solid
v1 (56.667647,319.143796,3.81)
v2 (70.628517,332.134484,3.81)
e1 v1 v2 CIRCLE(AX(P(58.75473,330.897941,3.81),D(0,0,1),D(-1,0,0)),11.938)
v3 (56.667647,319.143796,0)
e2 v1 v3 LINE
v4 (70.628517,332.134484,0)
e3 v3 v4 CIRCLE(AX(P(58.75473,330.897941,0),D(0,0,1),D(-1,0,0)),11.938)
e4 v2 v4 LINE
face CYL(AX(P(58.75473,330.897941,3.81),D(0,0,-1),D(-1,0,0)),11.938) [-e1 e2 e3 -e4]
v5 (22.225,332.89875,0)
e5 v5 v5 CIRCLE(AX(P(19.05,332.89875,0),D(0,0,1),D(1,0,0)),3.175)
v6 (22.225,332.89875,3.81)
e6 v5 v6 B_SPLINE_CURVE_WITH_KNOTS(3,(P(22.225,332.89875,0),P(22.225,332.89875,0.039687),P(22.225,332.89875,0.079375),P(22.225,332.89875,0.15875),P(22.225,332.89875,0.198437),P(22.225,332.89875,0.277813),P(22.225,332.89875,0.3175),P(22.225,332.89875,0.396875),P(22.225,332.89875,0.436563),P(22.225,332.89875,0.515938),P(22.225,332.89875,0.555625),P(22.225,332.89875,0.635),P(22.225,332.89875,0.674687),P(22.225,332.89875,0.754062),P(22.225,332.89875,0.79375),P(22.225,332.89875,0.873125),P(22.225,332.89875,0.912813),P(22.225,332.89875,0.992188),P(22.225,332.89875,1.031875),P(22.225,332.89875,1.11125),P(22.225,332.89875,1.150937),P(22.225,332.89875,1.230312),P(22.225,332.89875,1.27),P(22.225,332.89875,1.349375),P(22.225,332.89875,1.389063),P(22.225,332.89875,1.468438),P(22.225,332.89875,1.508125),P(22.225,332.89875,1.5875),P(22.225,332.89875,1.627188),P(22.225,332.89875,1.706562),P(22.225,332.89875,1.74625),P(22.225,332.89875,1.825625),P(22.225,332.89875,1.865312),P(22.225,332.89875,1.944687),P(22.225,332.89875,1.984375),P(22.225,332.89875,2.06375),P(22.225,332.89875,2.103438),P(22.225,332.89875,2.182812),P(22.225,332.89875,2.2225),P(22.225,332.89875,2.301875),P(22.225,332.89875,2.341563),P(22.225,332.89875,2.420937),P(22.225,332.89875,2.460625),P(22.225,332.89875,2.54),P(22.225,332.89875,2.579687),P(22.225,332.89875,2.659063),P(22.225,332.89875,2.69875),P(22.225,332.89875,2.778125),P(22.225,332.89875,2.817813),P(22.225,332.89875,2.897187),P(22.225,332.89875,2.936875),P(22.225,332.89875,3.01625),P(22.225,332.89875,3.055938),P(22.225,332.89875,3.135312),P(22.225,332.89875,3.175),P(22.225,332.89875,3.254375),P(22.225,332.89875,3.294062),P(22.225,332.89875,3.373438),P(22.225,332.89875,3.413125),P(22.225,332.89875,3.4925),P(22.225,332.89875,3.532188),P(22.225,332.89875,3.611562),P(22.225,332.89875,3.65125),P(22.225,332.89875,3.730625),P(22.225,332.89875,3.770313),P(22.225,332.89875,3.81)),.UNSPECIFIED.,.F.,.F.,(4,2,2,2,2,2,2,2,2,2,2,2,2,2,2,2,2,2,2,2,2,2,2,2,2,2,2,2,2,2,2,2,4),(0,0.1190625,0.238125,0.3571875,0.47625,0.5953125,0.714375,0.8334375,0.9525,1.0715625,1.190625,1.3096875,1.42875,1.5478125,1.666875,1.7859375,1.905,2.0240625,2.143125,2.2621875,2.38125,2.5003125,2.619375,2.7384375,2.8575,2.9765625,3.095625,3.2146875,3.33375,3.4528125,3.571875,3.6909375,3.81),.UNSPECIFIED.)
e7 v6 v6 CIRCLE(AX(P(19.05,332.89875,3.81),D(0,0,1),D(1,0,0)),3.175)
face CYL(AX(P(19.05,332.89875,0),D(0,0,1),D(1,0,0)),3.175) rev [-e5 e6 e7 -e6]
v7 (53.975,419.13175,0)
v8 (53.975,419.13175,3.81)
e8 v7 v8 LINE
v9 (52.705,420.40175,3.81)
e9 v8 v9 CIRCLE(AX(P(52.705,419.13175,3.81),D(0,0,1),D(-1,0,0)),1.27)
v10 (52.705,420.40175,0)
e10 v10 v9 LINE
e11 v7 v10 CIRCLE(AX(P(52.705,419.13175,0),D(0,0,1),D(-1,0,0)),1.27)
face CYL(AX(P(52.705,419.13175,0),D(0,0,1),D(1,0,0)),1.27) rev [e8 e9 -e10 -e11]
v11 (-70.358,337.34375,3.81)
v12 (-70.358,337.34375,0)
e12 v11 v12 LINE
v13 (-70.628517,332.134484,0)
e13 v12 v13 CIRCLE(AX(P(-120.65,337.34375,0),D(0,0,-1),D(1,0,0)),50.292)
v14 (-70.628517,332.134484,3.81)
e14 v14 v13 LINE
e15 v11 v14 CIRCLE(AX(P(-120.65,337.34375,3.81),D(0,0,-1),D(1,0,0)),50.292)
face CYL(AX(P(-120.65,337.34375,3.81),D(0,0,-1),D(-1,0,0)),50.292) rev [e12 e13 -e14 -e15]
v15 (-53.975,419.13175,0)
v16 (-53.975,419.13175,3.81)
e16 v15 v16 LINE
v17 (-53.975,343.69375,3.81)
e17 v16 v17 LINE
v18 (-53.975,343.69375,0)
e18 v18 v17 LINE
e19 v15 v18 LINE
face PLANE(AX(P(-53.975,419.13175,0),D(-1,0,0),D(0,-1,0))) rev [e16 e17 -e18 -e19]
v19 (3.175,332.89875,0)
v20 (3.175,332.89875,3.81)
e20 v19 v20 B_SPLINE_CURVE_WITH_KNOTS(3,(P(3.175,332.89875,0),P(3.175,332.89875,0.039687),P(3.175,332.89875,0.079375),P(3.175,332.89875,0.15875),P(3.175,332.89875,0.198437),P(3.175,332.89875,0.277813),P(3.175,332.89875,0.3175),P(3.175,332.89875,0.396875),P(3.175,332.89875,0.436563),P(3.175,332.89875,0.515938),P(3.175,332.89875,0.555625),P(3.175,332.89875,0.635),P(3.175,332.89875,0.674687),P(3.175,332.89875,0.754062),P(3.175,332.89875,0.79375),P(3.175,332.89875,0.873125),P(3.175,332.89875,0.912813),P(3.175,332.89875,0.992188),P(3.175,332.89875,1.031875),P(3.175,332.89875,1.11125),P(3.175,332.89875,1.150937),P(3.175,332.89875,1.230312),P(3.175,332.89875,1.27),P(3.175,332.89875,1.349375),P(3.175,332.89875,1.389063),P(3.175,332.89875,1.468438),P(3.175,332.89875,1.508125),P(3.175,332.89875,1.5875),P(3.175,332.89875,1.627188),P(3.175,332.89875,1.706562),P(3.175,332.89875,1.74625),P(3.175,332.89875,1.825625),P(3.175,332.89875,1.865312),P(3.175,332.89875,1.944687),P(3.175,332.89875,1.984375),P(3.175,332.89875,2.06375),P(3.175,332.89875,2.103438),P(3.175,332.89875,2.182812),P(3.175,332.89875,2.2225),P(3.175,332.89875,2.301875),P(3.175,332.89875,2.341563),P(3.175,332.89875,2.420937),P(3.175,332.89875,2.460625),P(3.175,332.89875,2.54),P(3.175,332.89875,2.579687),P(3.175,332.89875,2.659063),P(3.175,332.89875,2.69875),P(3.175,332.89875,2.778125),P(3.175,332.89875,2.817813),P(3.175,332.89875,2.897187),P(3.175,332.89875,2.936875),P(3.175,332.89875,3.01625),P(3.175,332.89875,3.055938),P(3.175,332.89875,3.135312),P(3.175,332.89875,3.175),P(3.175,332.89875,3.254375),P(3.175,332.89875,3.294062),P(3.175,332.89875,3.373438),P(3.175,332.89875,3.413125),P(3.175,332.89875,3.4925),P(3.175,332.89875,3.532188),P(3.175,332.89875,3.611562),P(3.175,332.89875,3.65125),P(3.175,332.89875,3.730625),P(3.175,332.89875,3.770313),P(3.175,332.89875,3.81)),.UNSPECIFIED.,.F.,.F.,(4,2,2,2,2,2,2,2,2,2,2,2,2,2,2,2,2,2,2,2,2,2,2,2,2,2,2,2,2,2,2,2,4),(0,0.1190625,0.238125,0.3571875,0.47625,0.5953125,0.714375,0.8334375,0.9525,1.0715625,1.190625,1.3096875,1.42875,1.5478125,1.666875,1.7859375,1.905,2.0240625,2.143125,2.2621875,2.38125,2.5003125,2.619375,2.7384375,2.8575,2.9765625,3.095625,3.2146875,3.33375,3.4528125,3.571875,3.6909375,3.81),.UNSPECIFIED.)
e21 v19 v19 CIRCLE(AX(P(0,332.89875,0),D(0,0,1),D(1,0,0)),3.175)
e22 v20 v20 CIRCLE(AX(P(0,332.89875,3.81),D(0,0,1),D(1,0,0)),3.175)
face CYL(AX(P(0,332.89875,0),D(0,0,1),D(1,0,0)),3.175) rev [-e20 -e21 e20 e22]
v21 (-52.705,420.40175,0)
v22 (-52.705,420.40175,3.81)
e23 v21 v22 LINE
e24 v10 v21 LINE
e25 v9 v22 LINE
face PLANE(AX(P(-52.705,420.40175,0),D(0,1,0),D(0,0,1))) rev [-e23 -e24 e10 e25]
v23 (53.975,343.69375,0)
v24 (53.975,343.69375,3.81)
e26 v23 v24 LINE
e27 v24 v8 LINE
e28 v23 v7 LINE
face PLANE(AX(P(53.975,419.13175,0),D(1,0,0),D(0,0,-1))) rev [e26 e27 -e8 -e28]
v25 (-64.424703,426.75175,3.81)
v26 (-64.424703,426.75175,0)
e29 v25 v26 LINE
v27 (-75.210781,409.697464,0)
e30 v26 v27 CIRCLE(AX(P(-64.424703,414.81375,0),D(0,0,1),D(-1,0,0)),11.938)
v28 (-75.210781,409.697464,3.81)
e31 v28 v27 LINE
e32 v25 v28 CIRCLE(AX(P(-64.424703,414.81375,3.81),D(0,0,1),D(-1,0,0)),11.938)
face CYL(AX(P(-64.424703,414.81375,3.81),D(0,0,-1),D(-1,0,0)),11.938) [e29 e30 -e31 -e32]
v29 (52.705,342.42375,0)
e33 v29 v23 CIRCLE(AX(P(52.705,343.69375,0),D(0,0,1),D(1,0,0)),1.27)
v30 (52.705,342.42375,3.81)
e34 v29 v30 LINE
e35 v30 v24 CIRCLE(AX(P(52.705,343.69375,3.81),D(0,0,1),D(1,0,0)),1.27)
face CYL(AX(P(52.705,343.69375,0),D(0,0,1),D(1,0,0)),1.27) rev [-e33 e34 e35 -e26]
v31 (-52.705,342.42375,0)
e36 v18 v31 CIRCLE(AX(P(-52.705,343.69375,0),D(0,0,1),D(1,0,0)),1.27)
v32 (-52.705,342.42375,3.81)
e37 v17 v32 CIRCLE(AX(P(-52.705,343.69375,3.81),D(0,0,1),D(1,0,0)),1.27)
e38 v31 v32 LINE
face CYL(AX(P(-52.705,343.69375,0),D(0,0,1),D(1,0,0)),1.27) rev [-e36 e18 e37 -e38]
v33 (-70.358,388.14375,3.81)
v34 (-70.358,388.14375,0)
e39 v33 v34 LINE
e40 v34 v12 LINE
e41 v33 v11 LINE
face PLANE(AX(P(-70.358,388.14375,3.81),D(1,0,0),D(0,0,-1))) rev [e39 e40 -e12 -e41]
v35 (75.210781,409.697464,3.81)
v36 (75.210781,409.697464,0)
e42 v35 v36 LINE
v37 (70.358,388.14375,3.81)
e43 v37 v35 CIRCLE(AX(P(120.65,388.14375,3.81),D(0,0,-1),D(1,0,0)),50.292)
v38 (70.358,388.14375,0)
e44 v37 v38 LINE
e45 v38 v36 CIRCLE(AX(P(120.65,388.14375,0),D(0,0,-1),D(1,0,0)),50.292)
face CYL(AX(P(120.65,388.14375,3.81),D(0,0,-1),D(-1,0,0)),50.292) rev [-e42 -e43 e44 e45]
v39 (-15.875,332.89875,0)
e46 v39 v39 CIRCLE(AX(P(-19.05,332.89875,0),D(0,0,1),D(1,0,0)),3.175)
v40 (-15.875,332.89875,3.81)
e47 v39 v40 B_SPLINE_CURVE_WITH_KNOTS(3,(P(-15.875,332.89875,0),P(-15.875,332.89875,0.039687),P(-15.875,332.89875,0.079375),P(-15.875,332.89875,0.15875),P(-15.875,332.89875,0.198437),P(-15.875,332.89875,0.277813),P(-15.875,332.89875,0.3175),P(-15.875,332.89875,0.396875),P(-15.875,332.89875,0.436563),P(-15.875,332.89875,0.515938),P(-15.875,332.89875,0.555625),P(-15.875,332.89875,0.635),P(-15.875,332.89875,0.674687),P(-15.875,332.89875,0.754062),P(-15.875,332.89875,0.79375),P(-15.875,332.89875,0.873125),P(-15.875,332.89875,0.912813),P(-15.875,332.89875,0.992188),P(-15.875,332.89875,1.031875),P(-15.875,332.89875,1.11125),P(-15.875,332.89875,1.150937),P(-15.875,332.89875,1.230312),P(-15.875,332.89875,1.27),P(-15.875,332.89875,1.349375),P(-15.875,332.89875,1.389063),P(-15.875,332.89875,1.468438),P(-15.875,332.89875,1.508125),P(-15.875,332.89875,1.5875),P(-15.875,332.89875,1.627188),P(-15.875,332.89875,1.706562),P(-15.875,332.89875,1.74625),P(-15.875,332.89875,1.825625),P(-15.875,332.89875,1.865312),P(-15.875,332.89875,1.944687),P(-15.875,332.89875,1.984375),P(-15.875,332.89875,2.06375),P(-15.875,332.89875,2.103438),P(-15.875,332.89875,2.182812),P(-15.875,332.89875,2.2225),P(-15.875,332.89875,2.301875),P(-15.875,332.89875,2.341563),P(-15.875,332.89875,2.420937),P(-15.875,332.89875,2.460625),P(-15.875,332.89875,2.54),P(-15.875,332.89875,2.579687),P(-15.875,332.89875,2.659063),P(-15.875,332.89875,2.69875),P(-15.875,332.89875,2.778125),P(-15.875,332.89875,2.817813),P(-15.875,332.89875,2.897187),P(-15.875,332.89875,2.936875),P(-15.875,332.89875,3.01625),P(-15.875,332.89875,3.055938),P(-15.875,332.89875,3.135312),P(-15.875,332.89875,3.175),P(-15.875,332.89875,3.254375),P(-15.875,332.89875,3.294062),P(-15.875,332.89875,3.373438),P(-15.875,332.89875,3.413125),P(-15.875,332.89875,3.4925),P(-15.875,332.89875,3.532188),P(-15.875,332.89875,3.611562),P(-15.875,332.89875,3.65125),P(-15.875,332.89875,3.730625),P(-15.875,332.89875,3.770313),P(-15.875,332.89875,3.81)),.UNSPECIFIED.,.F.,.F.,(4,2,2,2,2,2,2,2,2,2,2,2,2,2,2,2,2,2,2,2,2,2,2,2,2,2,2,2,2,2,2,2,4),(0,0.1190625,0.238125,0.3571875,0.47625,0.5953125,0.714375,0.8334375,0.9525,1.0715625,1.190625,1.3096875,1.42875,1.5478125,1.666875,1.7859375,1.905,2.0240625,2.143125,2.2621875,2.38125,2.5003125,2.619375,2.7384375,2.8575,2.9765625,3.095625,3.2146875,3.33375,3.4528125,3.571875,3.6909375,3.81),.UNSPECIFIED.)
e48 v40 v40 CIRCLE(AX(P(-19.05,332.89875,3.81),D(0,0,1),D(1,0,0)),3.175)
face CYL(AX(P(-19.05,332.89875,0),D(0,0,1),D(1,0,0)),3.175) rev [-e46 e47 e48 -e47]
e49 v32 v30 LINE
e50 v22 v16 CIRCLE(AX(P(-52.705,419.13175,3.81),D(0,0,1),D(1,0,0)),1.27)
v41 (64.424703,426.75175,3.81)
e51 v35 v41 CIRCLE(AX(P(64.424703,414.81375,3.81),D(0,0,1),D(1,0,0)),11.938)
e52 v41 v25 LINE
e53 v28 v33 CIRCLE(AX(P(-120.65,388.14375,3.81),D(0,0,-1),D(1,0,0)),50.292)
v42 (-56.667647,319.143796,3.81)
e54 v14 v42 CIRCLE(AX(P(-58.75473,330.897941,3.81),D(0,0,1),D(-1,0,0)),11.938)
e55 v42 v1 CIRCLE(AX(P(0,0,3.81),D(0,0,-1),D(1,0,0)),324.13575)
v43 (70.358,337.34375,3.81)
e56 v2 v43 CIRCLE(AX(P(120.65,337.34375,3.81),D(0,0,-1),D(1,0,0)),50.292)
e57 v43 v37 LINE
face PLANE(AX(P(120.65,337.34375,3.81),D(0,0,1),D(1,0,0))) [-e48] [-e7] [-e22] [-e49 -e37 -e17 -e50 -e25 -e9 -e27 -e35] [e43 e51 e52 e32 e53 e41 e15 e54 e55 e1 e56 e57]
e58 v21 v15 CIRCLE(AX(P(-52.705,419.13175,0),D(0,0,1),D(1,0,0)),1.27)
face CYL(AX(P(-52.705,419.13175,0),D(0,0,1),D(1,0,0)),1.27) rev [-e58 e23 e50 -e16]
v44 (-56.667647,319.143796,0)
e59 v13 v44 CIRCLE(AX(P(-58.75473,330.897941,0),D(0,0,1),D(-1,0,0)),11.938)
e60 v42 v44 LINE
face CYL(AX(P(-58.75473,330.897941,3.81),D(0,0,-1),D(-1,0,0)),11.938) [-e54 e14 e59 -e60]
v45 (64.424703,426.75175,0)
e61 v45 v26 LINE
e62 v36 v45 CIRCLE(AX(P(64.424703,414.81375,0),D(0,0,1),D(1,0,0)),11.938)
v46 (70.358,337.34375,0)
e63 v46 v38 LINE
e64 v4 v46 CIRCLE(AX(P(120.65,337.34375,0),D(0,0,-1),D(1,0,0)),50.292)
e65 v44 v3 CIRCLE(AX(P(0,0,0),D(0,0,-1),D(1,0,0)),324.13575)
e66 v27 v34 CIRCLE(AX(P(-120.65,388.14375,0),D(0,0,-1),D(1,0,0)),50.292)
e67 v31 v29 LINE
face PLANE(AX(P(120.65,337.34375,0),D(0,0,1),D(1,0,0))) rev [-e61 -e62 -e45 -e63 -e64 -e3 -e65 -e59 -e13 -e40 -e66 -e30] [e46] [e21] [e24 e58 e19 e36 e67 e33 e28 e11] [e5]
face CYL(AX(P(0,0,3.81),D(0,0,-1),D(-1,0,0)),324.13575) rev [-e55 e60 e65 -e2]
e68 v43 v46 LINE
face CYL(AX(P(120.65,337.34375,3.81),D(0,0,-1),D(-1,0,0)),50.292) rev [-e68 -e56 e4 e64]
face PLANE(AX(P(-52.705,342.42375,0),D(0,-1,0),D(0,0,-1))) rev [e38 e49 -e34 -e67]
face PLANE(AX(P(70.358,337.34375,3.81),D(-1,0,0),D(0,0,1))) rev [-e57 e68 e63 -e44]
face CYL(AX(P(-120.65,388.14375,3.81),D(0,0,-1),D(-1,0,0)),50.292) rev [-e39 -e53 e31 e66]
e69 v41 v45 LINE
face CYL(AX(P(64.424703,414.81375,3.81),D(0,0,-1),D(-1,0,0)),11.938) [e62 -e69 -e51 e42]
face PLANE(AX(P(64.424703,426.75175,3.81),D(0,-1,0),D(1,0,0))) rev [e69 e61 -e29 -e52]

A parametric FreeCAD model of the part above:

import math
import FreeCAD as App
import Part
import Sketcher

V = App.Vector
Q = App.Units.Quantity

doc = App.newDocument("Part")
body = doc.addObject("PartDesign::Body", "Body")

sketch1 = doc.addObject("Sketcher::SketchObject", "Sketch")
body.addObject(sketch1)
sketch1.AttachmentSupport = (doc.XY_Plane, [""])
sketch1.MapMode = "FlatFace"
sketch1.addGeometry([
    Part.LineSegment(V(70, 337, 0), V(70, 388, 0)),
    Part.ArcOfCircle(Part.Circle(V(121, 388, 0), V(0, 0, 1), 50), math.radians(155), math.radians(180)),
    Part.ArcOfCircle(Part.Circle(V(64, 415, 0), V(0, 0, 1), 12), math.radians(-25), math.radians(90)),
    Part.LineSegment(V(64, 427, 0), V(-64, 427, 0)),
    Part.ArcOfCircle(Part.Circle(V(-64, 415, 0), V(0, 0, 1), 12), math.radians(90), math.radians(205)),
    Part.ArcOfCircle(Part.Circle(V(-121, 388, 0), V(0, 0, 1), 50), math.radians(0), math.radians(25)),
    Part.LineSegment(V(-70, 388, 0), V(-70, 337, 0)),
    Part.ArcOfCircle(Part.Circle(V(-121, 337, 0), V(0, 0, 1), 50), math.radians(-5.95), math.radians(0)),
    Part.ArcOfCircle(Part.Circle(V(-59, 331, 0), V(0, 0, 1), 12), math.radians(174), math.radians(280)),
    Part.ArcOfCircle(Part.Circle(V(0, 0, 0), V(0, 0, 1), 324), math.radians(80), math.radians(100)),
    Part.ArcOfCircle(Part.Circle(V(59, 331, 0), V(0, 0, 1), 12), math.radians(-100), math.radians(6)),
    Part.ArcOfCircle(Part.Circle(V(121, 337, 0), V(0, 0, 1), 50), math.radians(-180), math.radians(-174.05)),
], False)
sketch1.addConstraint([
    Sketcher.Constraint("Tangent", 0, 2, 1, 2),
    Sketcher.Constraint("Tangent", 1, 1, 2, 1),
    Sketcher.Constraint("Tangent", 2, 2, 3, 1),
    Sketcher.Constraint("Tangent", 3, 2, 4, 1),
    Sketcher.Constraint("Tangent", 4, 2, 5, 2),
    Sketcher.Constraint("Tangent", 5, 1, 6, 1),
    Sketcher.Constraint("Tangent", 6, 2, 7, 2),
    Sketcher.Constraint("Tangent", 7, 1, 8, 1),
    Sketcher.Constraint("Tangent", 8, 2, 9, 2),
    Sketcher.Constraint("Tangent", 9, 1, 10, 1),
    Sketcher.Constraint("Tangent", 10, 2, 11, 2),
    Sketcher.Constraint("Tangent", 11, 1, 0, 1),
    Sketcher.Constraint("Vertical", 0),
    Sketcher.Constraint("Horizontal", 3),
    Sketcher.Constraint("Vertical", 6),
    Sketcher.Constraint("Coincident", 9, 3, -1, 1),
    Sketcher.Constraint("Equal", 2, 4),
    Sketcher.Constraint("Equal", 1, 5),
    Sketcher.Constraint("Equal", 5, 7),
    Sketcher.Constraint("Equal", 4, 8),
    Sketcher.Constraint("Equal", 8, 10),
    Sketcher.Constraint("Equal", 7, 11),
    Sketcher.Constraint("Symmetric", 1, 3, 5, 3, -2),
    Sketcher.Constraint("Horizontal", 8, 3, 10, 3),
    Sketcher.Constraint("DistanceY", 0, 1, 0, 2, Q("2 in")),
    Sketcher.Constraint("Radius", 1, Q("1.98 in")),
    Sketcher.Constraint("Radius", 2, Q("0.47 in")),
    Sketcher.Constraint("DistanceX", 5, 3, 1, 3, Q("9.5 in")),
    Sketcher.Constraint("DistanceY", 1, 3, 2, 3, Q("1.05 in")),
    Sketcher.Constraint("DistanceY", -1, 1, 1, 3, Q("15.28125 in")),
    Sketcher.Constraint("Radius", 9, Q("324.13575 mm")),
])
pad1 = doc.addObject("PartDesign::Pad", "Pad")
body.addObject(pad1)
pad1.Profile = sketch1
pad1.Length = Q("0.15 in")

sketch2 = doc.addObject("Sketcher::SketchObject", "Sketch001")
body.addObject(sketch2)
sketch2.AttachmentSupport = (doc.XY_Plane, [""])
sketch2.MapMode = "FlatFace"
sketch2.AttachmentOffset = App.Placement(V(0, 0, 0.15 * 25.4), App.Rotation())
sketch2.addGeometry([
    Part.Circle(V(-19.1, 332.9, 0), V(0, 0, 1), 3.2),
    Part.Circle(V(0, 332.9, 0), V(0, 0, 1), 3.2),
    Part.Circle(V(19.1, 332.9, 0), V(0, 0, 1), 3.2),
    Part.LineSegment(V(52.7, 420.4, 0), V(-52.7, 420.4, 0)),
    Part.ArcOfCircle(Part.Circle(V(-52.7, 419.1, 0), V(0, 0, 1), 1.3), math.radians(90), math.radians(180)),
    Part.LineSegment(V(-54, 419.1, 0), V(-54, 343.7, 0)),
    Part.ArcOfCircle(Part.Circle(V(-52.7, 343.7, 0), V(0, 0, 1), 1.3), math.radians(180), math.radians(270)),
    Part.LineSegment(V(-52.7, 342.4, 0), V(52.7, 342.4, 0)),
    Part.ArcOfCircle(Part.Circle(V(52.7, 343.7, 0), V(0, 0, 1), 1.3), math.radians(-90), math.radians(0)),
    Part.LineSegment(V(54, 343.7, 0), V(54, 419.1, 0)),
    Part.ArcOfCircle(Part.Circle(V(52.7, 419.1, 0), V(0, 0, 1), 1.3), math.radians(0), math.radians(90)),
], False)
sketch2.addConstraint([
    Sketcher.Constraint("Tangent", 3, 2, 4, 1),
    Sketcher.Constraint("Tangent", 4, 2, 5, 1),
    Sketcher.Constraint("Tangent", 5, 2, 6, 1),
    Sketcher.Constraint("Tangent", 6, 2, 7, 1),
    Sketcher.Constraint("Tangent", 7, 2, 8, 1),
    Sketcher.Constraint("Tangent", 8, 2, 9, 1),
    Sketcher.Constraint("Tangent", 9, 2, 10, 1),
    Sketcher.Constraint("Tangent", 10, 2, 3, 1),
    Sketcher.Constraint("Horizontal", 3),
    Sketcher.Constraint("Vertical", 5),
    Sketcher.Constraint("Horizontal", 7),
    Sketcher.Constraint("Vertical", 9),
    Sketcher.Constraint("Equal", 0, 1),
    Sketcher.Constraint("Equal", 1, 2),
    Sketcher.Constraint("Equal", 4, 6),
    Sketcher.Constraint("Equal", 6, 8),
    Sketcher.Constraint("Equal", 8, 10),
    Sketcher.Constraint("Symmetric", 0, 3, 2, 3, -2),
    Sketcher.Constraint("PointOnObject", 1, 3, -2),
    Sketcher.Constraint("Horizontal", 0, 3, 1, 3),
    Sketcher.Constraint("Diameter", 0, Q("0.25 in")),
    Sketcher.Constraint("Radius", 4, Q("0.05 in")),
    Sketcher.Constraint("DistanceX", 3, 2, 3, 1, Q("4.15 in")),
    Sketcher.Constraint("DistanceY", 5, 2, 5, 1, Q("2.97 in")),
    Sketcher.Constraint("DistanceX", 0, 3, 2, 3, Q("1.5 in")),
    Sketcher.Constraint("DistanceX", 4, 3, -1, 1, Q("2.075 in")),
    Sketcher.Constraint("DistanceY", -1, 1, 6, 3, Q("13.53125 in")),
    Sketcher.Constraint("DistanceY", 0, 3, 4, 3, Q("3.395 in")),
])
pocket1 = doc.addObject("PartDesign::Pocket", "Pocket")
body.addObject(pocket1)
pocket1.Profile = sketch2
pocket1.Type = "ThroughAll"

doc.recompute()
